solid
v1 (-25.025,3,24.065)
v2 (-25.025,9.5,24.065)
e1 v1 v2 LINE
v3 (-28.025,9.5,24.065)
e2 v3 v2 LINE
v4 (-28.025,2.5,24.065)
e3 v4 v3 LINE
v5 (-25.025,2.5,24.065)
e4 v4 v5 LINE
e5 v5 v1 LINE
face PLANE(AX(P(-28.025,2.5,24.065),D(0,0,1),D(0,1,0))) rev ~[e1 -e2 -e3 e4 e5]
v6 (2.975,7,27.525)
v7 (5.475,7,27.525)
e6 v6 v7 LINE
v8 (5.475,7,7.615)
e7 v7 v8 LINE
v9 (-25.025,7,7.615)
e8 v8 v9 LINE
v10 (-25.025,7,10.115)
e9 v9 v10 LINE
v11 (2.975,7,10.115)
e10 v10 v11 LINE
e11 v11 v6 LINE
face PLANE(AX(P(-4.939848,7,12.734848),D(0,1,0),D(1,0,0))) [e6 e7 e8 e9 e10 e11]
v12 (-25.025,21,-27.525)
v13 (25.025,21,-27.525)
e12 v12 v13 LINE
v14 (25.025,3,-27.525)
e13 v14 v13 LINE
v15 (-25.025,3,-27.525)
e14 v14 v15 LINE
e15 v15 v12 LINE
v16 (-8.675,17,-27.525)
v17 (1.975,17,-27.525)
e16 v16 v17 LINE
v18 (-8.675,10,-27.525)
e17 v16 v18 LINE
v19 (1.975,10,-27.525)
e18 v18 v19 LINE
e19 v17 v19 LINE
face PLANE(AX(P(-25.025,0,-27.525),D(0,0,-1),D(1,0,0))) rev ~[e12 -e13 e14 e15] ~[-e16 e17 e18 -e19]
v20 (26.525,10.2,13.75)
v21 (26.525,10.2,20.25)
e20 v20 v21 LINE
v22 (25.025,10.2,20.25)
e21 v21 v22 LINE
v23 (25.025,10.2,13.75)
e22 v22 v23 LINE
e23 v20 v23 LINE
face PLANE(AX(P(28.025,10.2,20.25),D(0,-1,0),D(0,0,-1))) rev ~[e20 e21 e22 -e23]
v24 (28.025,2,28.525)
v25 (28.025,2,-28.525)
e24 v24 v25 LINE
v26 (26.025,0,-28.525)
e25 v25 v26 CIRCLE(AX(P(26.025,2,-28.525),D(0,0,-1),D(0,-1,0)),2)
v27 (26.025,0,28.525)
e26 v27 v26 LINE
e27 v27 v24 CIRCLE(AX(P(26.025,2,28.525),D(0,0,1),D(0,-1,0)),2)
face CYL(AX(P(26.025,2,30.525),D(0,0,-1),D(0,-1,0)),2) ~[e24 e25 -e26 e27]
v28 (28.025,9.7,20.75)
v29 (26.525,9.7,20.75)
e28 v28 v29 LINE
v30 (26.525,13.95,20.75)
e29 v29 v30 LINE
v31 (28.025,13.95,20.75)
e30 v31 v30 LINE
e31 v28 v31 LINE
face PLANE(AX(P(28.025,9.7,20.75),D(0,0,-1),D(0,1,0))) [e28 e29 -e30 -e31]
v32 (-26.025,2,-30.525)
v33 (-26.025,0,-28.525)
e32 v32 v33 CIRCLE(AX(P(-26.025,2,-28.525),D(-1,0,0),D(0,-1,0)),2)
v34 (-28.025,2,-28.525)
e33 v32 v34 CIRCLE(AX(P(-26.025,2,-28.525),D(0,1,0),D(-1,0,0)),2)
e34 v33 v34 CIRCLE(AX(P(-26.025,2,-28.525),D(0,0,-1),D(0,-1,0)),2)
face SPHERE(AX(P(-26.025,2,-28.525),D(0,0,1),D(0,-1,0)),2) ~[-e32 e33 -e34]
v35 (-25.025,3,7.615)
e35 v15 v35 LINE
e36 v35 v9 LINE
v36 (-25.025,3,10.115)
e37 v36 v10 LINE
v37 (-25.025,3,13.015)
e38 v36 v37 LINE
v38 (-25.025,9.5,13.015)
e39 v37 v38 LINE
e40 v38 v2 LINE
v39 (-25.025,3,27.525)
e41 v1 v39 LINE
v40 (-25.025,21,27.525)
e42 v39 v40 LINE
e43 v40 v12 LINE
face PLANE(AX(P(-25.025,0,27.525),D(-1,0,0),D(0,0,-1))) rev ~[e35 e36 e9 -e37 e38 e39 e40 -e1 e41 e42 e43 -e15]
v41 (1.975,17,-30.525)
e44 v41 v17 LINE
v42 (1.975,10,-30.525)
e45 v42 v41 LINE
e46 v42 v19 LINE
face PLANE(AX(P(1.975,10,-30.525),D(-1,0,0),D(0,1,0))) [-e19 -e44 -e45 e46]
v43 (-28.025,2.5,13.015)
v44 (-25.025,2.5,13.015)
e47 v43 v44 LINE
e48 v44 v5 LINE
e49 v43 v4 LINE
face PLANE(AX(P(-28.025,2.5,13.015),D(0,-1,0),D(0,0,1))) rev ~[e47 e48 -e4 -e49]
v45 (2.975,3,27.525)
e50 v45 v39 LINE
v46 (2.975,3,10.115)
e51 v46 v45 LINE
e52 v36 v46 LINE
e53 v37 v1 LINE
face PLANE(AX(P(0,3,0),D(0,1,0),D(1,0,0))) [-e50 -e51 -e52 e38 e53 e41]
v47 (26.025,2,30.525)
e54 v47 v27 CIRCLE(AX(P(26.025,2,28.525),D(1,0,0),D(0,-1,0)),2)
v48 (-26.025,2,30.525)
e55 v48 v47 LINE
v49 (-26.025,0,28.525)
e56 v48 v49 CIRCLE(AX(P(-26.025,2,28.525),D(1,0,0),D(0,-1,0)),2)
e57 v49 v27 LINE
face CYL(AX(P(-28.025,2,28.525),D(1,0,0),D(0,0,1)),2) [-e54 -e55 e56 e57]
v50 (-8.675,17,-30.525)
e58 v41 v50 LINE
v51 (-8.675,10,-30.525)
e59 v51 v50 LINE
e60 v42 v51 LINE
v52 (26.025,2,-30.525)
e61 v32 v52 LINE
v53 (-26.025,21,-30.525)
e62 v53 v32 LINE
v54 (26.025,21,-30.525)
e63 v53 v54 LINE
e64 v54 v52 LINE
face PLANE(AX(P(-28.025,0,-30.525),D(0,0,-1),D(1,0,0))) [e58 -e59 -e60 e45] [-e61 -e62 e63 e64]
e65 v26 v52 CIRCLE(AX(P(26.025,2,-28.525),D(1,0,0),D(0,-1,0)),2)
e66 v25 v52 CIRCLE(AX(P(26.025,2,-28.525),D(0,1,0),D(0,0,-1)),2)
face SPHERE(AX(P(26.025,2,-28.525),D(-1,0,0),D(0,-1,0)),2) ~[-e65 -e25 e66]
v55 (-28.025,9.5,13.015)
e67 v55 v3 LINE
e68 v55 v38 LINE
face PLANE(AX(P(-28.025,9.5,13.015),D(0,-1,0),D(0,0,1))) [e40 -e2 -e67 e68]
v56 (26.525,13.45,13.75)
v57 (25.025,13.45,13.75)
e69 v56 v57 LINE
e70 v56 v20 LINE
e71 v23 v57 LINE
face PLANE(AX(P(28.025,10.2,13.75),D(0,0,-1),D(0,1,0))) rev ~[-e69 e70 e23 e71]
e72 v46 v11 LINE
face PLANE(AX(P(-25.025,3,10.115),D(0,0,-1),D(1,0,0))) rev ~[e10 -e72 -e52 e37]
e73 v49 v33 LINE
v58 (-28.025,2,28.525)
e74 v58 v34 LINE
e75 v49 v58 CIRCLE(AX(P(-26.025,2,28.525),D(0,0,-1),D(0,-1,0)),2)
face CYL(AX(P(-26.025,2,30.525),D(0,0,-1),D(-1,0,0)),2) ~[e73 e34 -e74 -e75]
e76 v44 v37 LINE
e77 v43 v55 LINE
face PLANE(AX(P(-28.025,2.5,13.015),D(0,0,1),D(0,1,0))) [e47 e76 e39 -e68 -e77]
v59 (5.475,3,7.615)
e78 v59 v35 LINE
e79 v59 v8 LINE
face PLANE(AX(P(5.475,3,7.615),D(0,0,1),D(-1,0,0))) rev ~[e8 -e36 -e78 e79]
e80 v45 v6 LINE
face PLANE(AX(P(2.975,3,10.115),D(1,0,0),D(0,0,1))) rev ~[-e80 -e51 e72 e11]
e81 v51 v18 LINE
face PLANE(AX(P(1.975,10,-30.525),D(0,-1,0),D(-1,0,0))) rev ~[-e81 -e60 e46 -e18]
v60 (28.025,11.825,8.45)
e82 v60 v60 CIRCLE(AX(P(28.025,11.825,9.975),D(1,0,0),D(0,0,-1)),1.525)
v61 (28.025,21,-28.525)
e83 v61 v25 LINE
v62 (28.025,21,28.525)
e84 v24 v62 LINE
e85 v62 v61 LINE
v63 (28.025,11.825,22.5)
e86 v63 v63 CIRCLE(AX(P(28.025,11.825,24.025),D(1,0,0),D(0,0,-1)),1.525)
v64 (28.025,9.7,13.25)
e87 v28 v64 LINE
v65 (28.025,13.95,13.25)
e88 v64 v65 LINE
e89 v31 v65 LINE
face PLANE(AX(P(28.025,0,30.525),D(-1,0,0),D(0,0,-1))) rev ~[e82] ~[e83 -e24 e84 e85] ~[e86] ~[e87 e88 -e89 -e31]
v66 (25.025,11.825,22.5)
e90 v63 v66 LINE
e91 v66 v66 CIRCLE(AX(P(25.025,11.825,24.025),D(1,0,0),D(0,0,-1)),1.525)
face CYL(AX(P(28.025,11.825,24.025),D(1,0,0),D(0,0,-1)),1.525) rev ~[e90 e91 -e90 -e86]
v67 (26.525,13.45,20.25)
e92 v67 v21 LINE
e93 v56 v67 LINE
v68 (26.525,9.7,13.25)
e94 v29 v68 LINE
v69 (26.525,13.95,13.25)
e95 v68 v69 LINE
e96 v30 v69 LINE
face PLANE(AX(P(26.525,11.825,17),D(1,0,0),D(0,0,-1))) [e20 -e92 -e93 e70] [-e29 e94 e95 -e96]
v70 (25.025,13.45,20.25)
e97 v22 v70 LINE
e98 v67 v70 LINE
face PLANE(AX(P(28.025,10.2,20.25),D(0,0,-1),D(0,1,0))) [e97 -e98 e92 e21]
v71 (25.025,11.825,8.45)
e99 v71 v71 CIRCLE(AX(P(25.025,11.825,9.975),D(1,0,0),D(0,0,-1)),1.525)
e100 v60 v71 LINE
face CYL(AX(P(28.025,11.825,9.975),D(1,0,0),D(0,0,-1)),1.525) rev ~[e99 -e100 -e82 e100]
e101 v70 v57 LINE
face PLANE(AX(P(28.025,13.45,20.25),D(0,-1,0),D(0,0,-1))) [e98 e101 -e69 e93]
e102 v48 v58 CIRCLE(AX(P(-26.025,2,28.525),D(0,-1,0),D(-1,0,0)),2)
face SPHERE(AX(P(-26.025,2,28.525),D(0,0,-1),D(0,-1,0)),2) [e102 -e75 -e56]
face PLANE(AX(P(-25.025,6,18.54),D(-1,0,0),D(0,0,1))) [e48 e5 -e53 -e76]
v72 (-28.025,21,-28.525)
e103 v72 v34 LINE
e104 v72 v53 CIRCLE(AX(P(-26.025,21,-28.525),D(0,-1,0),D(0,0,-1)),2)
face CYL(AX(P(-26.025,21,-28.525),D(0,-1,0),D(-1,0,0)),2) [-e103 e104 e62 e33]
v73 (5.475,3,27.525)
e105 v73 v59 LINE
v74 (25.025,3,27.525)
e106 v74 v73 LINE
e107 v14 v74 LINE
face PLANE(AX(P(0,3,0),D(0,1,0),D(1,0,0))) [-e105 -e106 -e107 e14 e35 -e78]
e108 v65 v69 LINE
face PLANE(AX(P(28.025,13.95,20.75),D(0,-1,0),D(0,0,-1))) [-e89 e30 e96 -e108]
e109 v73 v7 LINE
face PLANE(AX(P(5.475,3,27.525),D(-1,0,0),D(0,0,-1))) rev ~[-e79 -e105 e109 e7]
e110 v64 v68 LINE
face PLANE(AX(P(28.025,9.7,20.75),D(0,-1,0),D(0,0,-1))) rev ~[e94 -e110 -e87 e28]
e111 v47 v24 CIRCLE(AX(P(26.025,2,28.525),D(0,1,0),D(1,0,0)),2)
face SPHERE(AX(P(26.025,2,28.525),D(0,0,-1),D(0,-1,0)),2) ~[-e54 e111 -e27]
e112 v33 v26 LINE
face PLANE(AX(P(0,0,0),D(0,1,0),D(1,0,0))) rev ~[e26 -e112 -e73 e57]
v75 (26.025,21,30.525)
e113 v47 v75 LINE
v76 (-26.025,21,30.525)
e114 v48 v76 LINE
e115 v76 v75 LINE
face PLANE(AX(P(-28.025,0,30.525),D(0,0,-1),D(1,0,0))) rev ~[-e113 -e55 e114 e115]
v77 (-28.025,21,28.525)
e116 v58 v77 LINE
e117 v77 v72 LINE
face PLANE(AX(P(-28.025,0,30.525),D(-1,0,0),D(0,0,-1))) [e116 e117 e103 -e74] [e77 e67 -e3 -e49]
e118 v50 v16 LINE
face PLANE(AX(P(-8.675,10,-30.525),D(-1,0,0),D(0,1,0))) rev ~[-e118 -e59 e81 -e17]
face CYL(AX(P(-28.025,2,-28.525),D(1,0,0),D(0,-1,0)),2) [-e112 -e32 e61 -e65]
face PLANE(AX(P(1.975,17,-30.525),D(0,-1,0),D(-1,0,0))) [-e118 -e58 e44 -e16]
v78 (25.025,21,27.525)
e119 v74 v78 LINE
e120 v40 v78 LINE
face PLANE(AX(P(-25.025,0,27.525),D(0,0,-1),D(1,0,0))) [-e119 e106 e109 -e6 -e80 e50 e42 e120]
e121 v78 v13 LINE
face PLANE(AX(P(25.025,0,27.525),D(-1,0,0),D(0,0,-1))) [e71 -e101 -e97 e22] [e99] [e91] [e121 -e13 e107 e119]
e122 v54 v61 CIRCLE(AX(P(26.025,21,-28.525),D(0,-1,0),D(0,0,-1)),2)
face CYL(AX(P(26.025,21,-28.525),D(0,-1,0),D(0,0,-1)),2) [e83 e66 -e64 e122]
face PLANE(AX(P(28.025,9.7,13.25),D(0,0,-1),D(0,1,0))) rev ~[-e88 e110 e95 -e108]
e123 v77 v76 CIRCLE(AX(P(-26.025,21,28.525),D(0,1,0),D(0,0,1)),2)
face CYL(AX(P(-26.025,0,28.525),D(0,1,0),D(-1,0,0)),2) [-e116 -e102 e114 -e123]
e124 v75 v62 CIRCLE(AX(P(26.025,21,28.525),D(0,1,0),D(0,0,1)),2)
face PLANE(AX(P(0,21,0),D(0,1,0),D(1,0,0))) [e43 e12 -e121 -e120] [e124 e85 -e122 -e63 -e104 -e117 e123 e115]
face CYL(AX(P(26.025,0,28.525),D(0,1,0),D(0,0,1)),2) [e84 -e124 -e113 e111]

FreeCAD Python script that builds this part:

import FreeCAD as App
import Part
import Sketcher

V = App.Vector
Q = App.Units.Quantity


def edges_at(feature, points):
    """Names of the edges that pass closest to the given points."""
    edges = feature.Shape.Edges
    near = lambda p: min(range(len(edges)), key=lambda i: edges[i].distToShape(Part.Vertex(*p))[0])
    return sorted({f"Edge{near(p) + 1}" for p in points})

doc = App.newDocument("Part")
body = doc.addObject("PartDesign::Body", "Body")

sketch1 = body.newObject("Sketcher::SketchObject", "Sketch")
sketch1.AttachmentSupport = (doc.getObject("XZ_Plane"), [""])
sketch1.MapMode = "FlatFace"
sketch1.addGeometry(Part.LineSegment(V(-28, -31, 0), V(-28, 31, 0)), False)
sketch1.addGeometry(Part.LineSegment(V(-28, 31, 0), V(28, 31, 0)), False)
sketch1.addGeometry(Part.LineSegment(V(28, 31, 0), V(28, -31, 0)), False)
sketch1.addGeometry(Part.LineSegment(V(28, -31, 0), V(-28, -31, 0)), False)
sketch1.addConstraint(Sketcher.Constraint("Coincident", 0, 2, 1, 1))
sketch1.addConstraint(Sketcher.Constraint("Coincident", 1, 2, 2, 1))
sketch1.addConstraint(Sketcher.Constraint("Coincident", 2, 2, 3, 1))
sketch1.addConstraint(Sketcher.Constraint("Coincident", 3, 2, 0, 1))
sketch1.addConstraint(Sketcher.Constraint("Vertical", 0))
sketch1.addConstraint(Sketcher.Constraint("Horizontal", 1))
sketch1.addConstraint(Sketcher.Constraint("Vertical", 2))
sketch1.addConstraint(Sketcher.Constraint("Horizontal", 3))
sketch1.addConstraint(Sketcher.Constraint("Symmetric", 0, 2, 2, 2, -1, 1))
sketch1.addConstraint(Sketcher.Constraint("DistanceX", 1, 1, 1, 2, Q("56.05 mm")))
sketch1.addConstraint(Sketcher.Constraint("DistanceY", 0, 1, 0, 2, Q("61.05 mm")))
pad1 = body.newObject("PartDesign::Pad", "Pad")
pad1.Profile = sketch1
pad1.Length = 3
pad1.Reversed = True

sketch2 = body.newObject("Sketcher::SketchObject", "Sketch001")
sketch2.AttachmentSupport = (doc.getObject("XZ_Plane"), [""])
sketch2.MapMode = "FlatFace"
sketch2.addGeometry(Part.LineSegment(V(-28, -31, 0), V(-28, 31, 0)), False)
sketch2.addGeometry(Part.LineSegment(V(-28, 31, 0), V(28, 31, 0)), False)
sketch2.addGeometry(Part.LineSegment(V(28, 31, 0), V(28, -31, 0)), False)
sketch2.addGeometry(Part.LineSegment(V(28, -31, 0), V(-28, -31, 0)), False)
sketch2.addGeometry(Part.LineSegment(V(25, 28, 0), V(-25, 28, 0)), False)
sketch2.addGeometry(Part.LineSegment(V(-25, 28, 0), V(-25, -28, 0)), False)
sketch2.addGeometry(Part.LineSegment(V(-25, -28, 0), V(25, -28, 0)), False)
sketch2.addGeometry(Part.LineSegment(V(25, -28, 0), V(25, 28, 0)), False)
sketch2.addConstraint(Sketcher.Constraint("Coincident", 0, 2, 1, 1))
sketch2.addConstraint(Sketcher.Constraint("Coincident", 1, 2, 2, 1))
sketch2.addConstraint(Sketcher.Constraint("Coincident", 2, 2, 3, 1))
sketch2.addConstraint(Sketcher.Constraint("Coincident", 3, 2, 0, 1))
sketch2.addConstraint(Sketcher.Constraint("Coincident", 4, 2, 5, 1))
sketch2.addConstraint(Sketcher.Constraint("Coincident", 5, 2, 6, 1))
sketch2.addConstraint(Sketcher.Constraint("Coincident", 6, 2, 7, 1))
sketch2.addConstraint(Sketcher.Constraint("Coincident", 7, 2, 4, 1))
sketch2.addConstraint(Sketcher.Constraint("Vertical", 0))
sketch2.addConstraint(Sketcher.Constraint("Horizontal", 1))
sketch2.addConstraint(Sketcher.Constraint("Vertical", 2))
sketch2.addConstraint(Sketcher.Constraint("Horizontal", 3))
sketch2.addConstraint(Sketcher.Constraint("Horizontal", 4))
sketch2.addConstraint(Sketcher.Constraint("Vertical", 5))
sketch2.addConstraint(Sketcher.Constraint("Horizontal", 6))
sketch2.addConstraint(Sketcher.Constraint("Vertical", 7))
sketch2.addConstraint(Sketcher.Constraint("Symmetric", 0, 2, 2, 2, -1, 1))
sketch2.addConstraint(Sketcher.Constraint("Symmetric", 4, 2, 6, 2, -1, 1))
sketch2.addConstraint(Sketcher.Constraint("DistanceX", 0, 2, 4, 2, Q("3 mm")))
sketch2.addConstraint(Sketcher.Constraint("DistanceY", 4, 2, 0, 2, Q("3 mm")))
sketch2.addConstraint(Sketcher.Constraint("DistanceX", 1, 1, 1, 2, Q("56.05 mm")))
sketch2.addConstraint(Sketcher.Constraint("DistanceY", 0, 1, 0, 2, Q("61.05 mm")))
pad2 = body.newObject("PartDesign::Pad", "Pad001")
pad2.Profile = sketch2
pad2.Length = 21
pad2.Reversed = True

sketch3 = body.newObject("Sketcher::SketchObject", "Sketch002")
sketch3.AttachmentSupport = (doc.getObject("YZ_Plane"), [""])
sketch3.MapMode = "FlatFace"
sketch3.AttachmentOffset = App.Placement(V(0, 0, 28.025), App.Rotation())
sketch3.addGeometry(Part.Circle(V(11.8, 24, 0), V(0, 0, 1), 1.5), False)
sketch3.addConstraint(Sketcher.Constraint("Diameter", 0, Q("3.05 mm")))
sketch3.addConstraint(Sketcher.Constraint("DistanceX", -1, 1, 0, 3, Q("11.825 mm")))
sketch3.addConstraint(Sketcher.Constraint("DistanceY", -1, 1, 0, 3, Q("24.025 mm")))
pocket1 = body.newObject("PartDesign::Pocket", "Pocket")
pocket1.Profile = sketch3
pocket1.Type = "UpToFirst"

sketch4 = body.newObject("Sketcher::SketchObject", "Sketch003")
sketch4.AttachmentSupport = (doc.getObject("YZ_Plane"), [""])
sketch4.MapMode = "FlatFace"
sketch4.AttachmentOffset = App.Placement(V(0, 0, 28.025), App.Rotation())
sketch4.addGeometry(Part.Circle(V(11.8, 10, 0), V(0, 0, 1), 1.5), False)
sketch4.addConstraint(Sketcher.Constraint("Diameter", 0, Q("3.05 mm")))
sketch4.addConstraint(Sketcher.Constraint("DistanceX", -1, 1, 0, 3, Q("11.825 mm")))
sketch4.addConstraint(Sketcher.Constraint("DistanceY", -1, 1, 0, 3, Q("9.975 mm")))
pocket2 = body.newObject("PartDesign::Pocket", "Pocket001")
pocket2.Profile = sketch4
pocket2.Type = "UpToFirst"

sketch5 = body.newObject("Sketcher::SketchObject", "Sketch004")
sketch5.AttachmentSupport = (doc.getObject("YZ_Plane"), [""])
sketch5.MapMode = "FlatFace"
sketch5.AttachmentOffset = App.Placement(V(0, 0, 28.025), App.Rotation())
sketch5.addGeometry(Part.LineSegment(V(13.4, 20.2, 0), V(10.2, 20.2, 0)), False)
sketch5.addGeometry(Part.LineSegment(V(10.2, 20.2, 0), V(10.2, 13.8, 0)), False)
sketch5.addGeometry(Part.LineSegment(V(10.2, 13.8, 0), V(13.4, 13.8, 0)), False)
sketch5.addGeometry(Part.LineSegment(V(13.4, 13.8, 0), V(13.4, 20.2, 0)), False)
sketch5.addConstraint(Sketcher.Constraint("Coincident", 0, 2, 1, 1))
sketch5.addConstraint(Sketcher.Constraint("Coincident", 1, 2, 2, 1))
sketch5.addConstraint(Sketcher.Constraint("Coincident", 2, 2, 3, 1))
sketch5.addConstraint(Sketcher.Constraint("Coincident", 3, 2, 0, 1))
sketch5.addConstraint(Sketcher.Constraint("Horizontal", 0))
sketch5.addConstraint(Sketcher.Constraint("Vertical", 1))
sketch5.addConstraint(Sketcher.Constraint("Horizontal", 2))
sketch5.addConstraint(Sketcher.Constraint("Vertical", 3))
sketch5.addConstraint(Sketcher.Constraint("DistanceY", 1, 2, 1, 1, Q("6.5 mm")))
sketch5.addConstraint(Sketcher.Constraint("DistanceX", 0, 2, 0, 1, Q("3.25 mm")))
sketch5.addConstraint(Sketcher.Constraint("DistanceX", -1, 1, 0, 2, Q("10.2 mm")))
sketch5.addConstraint(Sketcher.Constraint("DistanceY", -1, 1, 0, 2, Q("20.25 mm")))
pocket3 = body.newObject("PartDesign::Pocket", "Pocket002")
pocket3.Profile = sketch5
pocket3.Type = "UpToFirst"

sketch6 = body.newObject("Sketcher::SketchObject", "Sketch005")
sketch6.AttachmentSupport = (doc.getObject("XY_Plane"), [""])
sketch6.MapMode = "FlatFace"
sketch6.AttachmentOffset = App.Placement(V(0, 0, -30.525), App.Rotation())
sketch6.addGeometry(Part.LineSegment(V(2, 17, 0), V(2, 10, 0)), False)
sketch6.addGeometry(Part.LineSegment(V(2, 10, 0), V(-9, 10, 0)), False)
sketch6.addGeometry(Part.LineSegment(V(-9, 10, 0), V(-9, 17, 0)), False)
sketch6.addGeometry(Part.LineSegment(V(-9, 17, 0), V(2, 17, 0)), False)
sketch6.addConstraint(Sketcher.Constraint("Coincident", 0, 2, 1, 1))
sketch6.addConstraint(Sketcher.Constraint("Coincident", 1, 2, 2, 1))
sketch6.addConstraint(Sketcher.Constraint("Coincident", 2, 2, 3, 1))
sketch6.addConstraint(Sketcher.Constraint("Coincident", 3, 2, 0, 1))
sketch6.addConstraint(Sketcher.Constraint("Vertical", 0))
sketch6.addConstraint(Sketcher.Constraint("Horizontal", 1))
sketch6.addConstraint(Sketcher.Constraint("Vertical", 2))
sketch6.addConstraint(Sketcher.Constraint("Horizontal", 3))
sketch6.addConstraint(Sketcher.Constraint("DistanceY", 0, 2, 0, 1, Q("7 mm")))
sketch6.addConstraint(Sketcher.Constraint("DistanceY", -1, 1, 0, 2, Q("10 mm")))
sketch6.addConstraint(Sketcher.Constraint("DistanceX", 1, 2, 1, 1, Q("10.65 mm")))
sketch6.addConstraint(Sketcher.Constraint("DistanceX", -1, 1, 0, 2, Q("1.975 mm")))
pocket4 = body.newObject("PartDesign::Pocket", "Pocket003")
pocket4.Profile = sketch6
pocket4.Type = "UpToFirst"
pocket4.Reversed = True

sketch7 = body.newObject("Sketcher::SketchObject", "Sketch006")
sketch7.AttachmentSupport = (doc.getObject("YZ_Plane"), [""])
sketch7.MapMode = "FlatFace"
sketch7.AttachmentOffset = App.Placement(V(0, 0, -28.025), App.Rotation())
sketch7.addGeometry(Part.LineSegment(V(10, 13, 0), V(2, 13, 0)), False)
sketch7.addGeometry(Part.LineSegment(V(2, 13, 0), V(2, 24, 0)), False)
sketch7.addGeometry(Part.LineSegment(V(2, 24, 0), V(10, 24, 0)), False)
sketch7.addGeometry(Part.LineSegment(V(10, 24, 0), V(10, 13, 0)), False)
sketch7.addConstraint(Sketcher.Constraint("Coincident", 0, 2, 1, 1))
sketch7.addConstraint(Sketcher.Constraint("Coincident", 1, 2, 2, 1))
sketch7.addConstraint(Sketcher.Constraint("Coincident", 2, 2, 3, 1))
sketch7.addConstraint(Sketcher.Constraint("Coincident", 3, 2, 0, 1))
sketch7.addConstraint(Sketcher.Constraint("Horizontal", 0))
sketch7.addConstraint(Sketcher.Constraint("Vertical", 1))
sketch7.addConstraint(Sketcher.Constraint("Horizontal", 2))
sketch7.addConstraint(Sketcher.Constraint("Vertical", 3))
sketch7.addConstraint(Sketcher.Constraint("DistanceX", 0, 2, 0, 1, Q("7 mm")))
sketch7.addConstraint(Sketcher.Constraint("DistanceY", 1, 1, 1, 2, Q("11.05 mm")))
sketch7.addConstraint(Sketcher.Constraint("DistanceX", -1, 1, 0, 2, Q("2.5 mm")))
sketch7.addConstraint(Sketcher.Constraint("DistanceY", -1, 1, 0, 2, Q("13.015 mm")))
pocket5 = body.newObject("PartDesign::Pocket", "Pocket004")
pocket5.Profile = sketch7
pocket5.Length = 3
pocket5.Reversed = True

sketch8 = body.newObject("Sketcher::SketchObject", "Sketch007")
sketch8.AttachmentSupport = (doc.getObject("XZ_Plane"), [""])
sketch8.MapMode = "FlatFace"
sketch8.AttachmentOffset = App.Placement(V(0, 0, -3), App.Rotation())
sketch8.addGeometry(Part.LineSegment(V(5.5, 7.6, 0), V(-25, 7.6, 0)), False)
sketch8.addGeometry(Part.LineSegment(V(-25, 7.6, 0), V(-25, 10.1, 0)), False)
sketch8.addGeometry(Part.LineSegment(V(-25, 10.1, 0), V(3, 10.1, 0)), False)
sketch8.addGeometry(Part.LineSegment(V(3, 10.1, 0), V(3, 27.5, 0)), False)
sketch8.addGeometry(Part.LineSegment(V(3, 27.5, 0), V(5.5, 27.5, 0)), False)
sketch8.addGeometry(Part.LineSegment(V(5.5, 27.5, 0), V(5.5, 7.6, 0)), False)
sketch8.addConstraint(Sketcher.Constraint("Coincident", 0, 2, 1, 1))
sketch8.addConstraint(Sketcher.Constraint("Coincident", 1, 2, 2, 1))
sketch8.addConstraint(Sketcher.Constraint("Coincident", 2, 2, 3, 1))
sketch8.addConstraint(Sketcher.Constraint("Coincident", 3, 2, 4, 1))
sketch8.addConstraint(Sketcher.Constraint("Coincident", 4, 2, 5, 1))
sketch8.addConstraint(Sketcher.Constraint("Coincident", 5, 2, 0, 1))
sketch8.addConstraint(Sketcher.Constraint("Horizontal", 0))
sketch8.addConstraint(Sketcher.Constraint("Vertical", 1))
sketch8.addConstraint(Sketcher.Constraint("Horizontal", 2))
sketch8.addConstraint(Sketcher.Constraint("Vertical", 3))
sketch8.addConstraint(Sketcher.Constraint("Horizontal", 4))
sketch8.addConstraint(Sketcher.Constraint("Vertical", 5))
sketch8.addConstraint(Sketcher.Constraint("Equal", 4, 1))
sketch8.addConstraint(Sketcher.Constraint("DistanceX", 2, 1, 2, 2, Q("28 mm")))
sketch8.addConstraint(Sketcher.Constraint("DistanceX", 0, 2, 0, 1, Q("30.5 mm")))
sketch8.addConstraint(Sketcher.Constraint("DistanceY", 3, 1, 3, 2, Q("17.41 mm")))
sketch8.addConstraint(Sketcher.Constraint("DistanceX", 0, 2, -1, 1, Q("25.025 mm")))
sketch8.addConstraint(Sketcher.Constraint("DistanceY", -1, 1, 0, 2, Q("7.615 mm")))
pad3 = body.newObject("PartDesign::Pad", "Pad002")
pad3.Profile = sketch8
pad3.Length = 4
pad3.Reversed = True
doc.recompute()

fillet = body.newObject("PartDesign::Fillet", "Fillet")
fillet.Base = (pad3, edges_at(pad3, [
    (-28.025, 0, 0),
    (0, 0, -30.525),
    (28.025, 0, 0),
    (0, 0, 30.525),
    (-28.025, 10.5, 30.525),
    (-28.025, 10.5, -30.525),
    (28.025, 10.5, -30.525),
    (28.025, 10.5, 30.525),
]))
fillet.Radius = 2

sketch9 = body.newObject("Sketcher::SketchObject", "Sketch008")
sketch9.AttachmentSupport = (doc.getObject("YZ_Plane"), [""])
sketch9.MapMode = "FlatFace"
sketch9.AttachmentOffset = App.Placement(V(0, 0, 28.025), App.Rotation())
sketch9.addGeometry(Part.LineSegment(V(13.9, 20.8, 0), V(9.7, 20.8, 0)), False)
sketch9.addGeometry(Part.LineSegment(V(9.7, 20.8, 0), V(9.7, 13.2, 0)), False)
sketch9.addGeometry(Part.LineSegment(V(9.7, 13.2, 0), V(13.9, 13.2, 0)), False)
sketch9.addGeometry(Part.LineSegment(V(13.9, 13.2, 0), V(13.9, 20.8, 0)), False)
sketch9.addConstraint(Sketcher.Constraint("Coincident", 0, 2, 1, 1))
sketch9.addConstraint(Sketcher.Constraint("Coincident", 1, 2, 2, 1))
sketch9.addConstraint(Sketcher.Constraint("Coincident", 2, 2, 3, 1))
sketch9.addConstraint(Sketcher.Constraint("Coincident", 3, 2, 0, 1))
sketch9.addConstraint(Sketcher.Constraint("Horizontal", 0))
sketch9.addConstraint(Sketcher.Constraint("Vertical", 1))
sketch9.addConstraint(Sketcher.Constraint("Horizontal", 2))
sketch9.addConstraint(Sketcher.Constraint("Vertical", 3))
sketch9.addConstraint(Sketcher.Constraint("DistanceY", 1, 2, 1, 1, Q("7.5 mm")))
sketch9.addConstraint(Sketcher.Constraint("DistanceX", 0, 2, 0, 1, Q("4.25 mm")))
sketch9.addConstraint(Sketcher.Constraint("DistanceX", -1, 1, 0, 2, Q("9.7 mm")))
sketch9.addConstraint(Sketcher.Constraint("DistanceY", -1, 1, 0, 2, Q("20.75 mm")))
pocket6 = body.newObject("PartDesign::Pocket", "Pocket005")
pocket6.Profile = sketch9
pocket6.Length = 1.5

doc.recompute()
